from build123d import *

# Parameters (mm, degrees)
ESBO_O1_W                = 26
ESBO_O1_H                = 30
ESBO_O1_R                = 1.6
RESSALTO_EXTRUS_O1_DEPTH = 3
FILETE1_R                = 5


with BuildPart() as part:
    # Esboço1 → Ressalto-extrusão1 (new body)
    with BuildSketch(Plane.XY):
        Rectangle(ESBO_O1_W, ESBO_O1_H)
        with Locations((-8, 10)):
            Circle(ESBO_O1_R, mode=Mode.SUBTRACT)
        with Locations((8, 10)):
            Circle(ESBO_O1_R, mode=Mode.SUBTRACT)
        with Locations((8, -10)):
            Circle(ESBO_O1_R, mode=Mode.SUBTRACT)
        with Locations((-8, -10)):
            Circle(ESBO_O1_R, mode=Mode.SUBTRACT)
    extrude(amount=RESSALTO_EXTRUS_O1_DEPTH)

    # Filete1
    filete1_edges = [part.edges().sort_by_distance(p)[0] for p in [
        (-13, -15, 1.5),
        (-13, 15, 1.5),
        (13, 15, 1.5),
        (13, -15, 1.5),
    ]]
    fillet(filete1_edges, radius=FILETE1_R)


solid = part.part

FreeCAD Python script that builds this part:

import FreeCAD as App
import Part
import Sketcher

V = App.Vector


def edges_at(feature, points):
    """Names of the edges that pass closest to the given points."""
    edges = feature.Shape.Edges
    near = lambda p: min(range(len(edges)), key=lambda i: edges[i].distToShape(Part.Vertex(*p))[0])
    return sorted({f"Edge{near(p) + 1}" for p in points})

doc = App.newDocument("Part")
body = doc.addObject("PartDesign::Body", "Body")

# Sketch on XY plane
sketch1 = body.newObject("Sketcher::SketchObject", "Sketch")
sketch1.AttachmentSupport = (doc.getObject("XY_Plane"), [""])
sketch1.MapMode = "FlatFace"
sketch1.addGeometry(Part.LineSegment(V(-13, 15, 0), V(-13, -15, 0)), False)
sketch1.addGeometry(Part.LineSegment(V(-13, -15, 0), V(13, -15, 0)), False)
sketch1.addGeometry(Part.LineSegment(V(13, -15, 0), V(13, 15, 0)), False)
sketch1.addGeometry(Part.LineSegment(V(13, 15, 0), V(-13, 15, 0)), False)
sketch1.addGeometry(Part.Circle(V(-8, -10, 0), V(0, 0, 1), 1.6), False)
sketch1.addGeometry(Part.Circle(V(8, -10, 0), V(0, 0, 1), 1.6), False)
sketch1.addGeometry(Part.Circle(V(-8, 10, 0), V(0, 0, 1), 1.6), False)
sketch1.addGeometry(Part.Circle(V(8, 10, 0), V(0, 0, 1), 1.6), False)
sketch1.addConstraint(Sketcher.Constraint("Coincident", 0, 2, 1, 1))
sketch1.addConstraint(Sketcher.Constraint("Coincident", 1, 2, 2, 1))
sketch1.addConstraint(Sketcher.Constraint("Coincident", 2, 2, 3, 1))
sketch1.addConstraint(Sketcher.Constraint("Coincident", 3, 2, 0, 1))
sketch1.addConstraint(Sketcher.Constraint("Vertical", 0))
sketch1.addConstraint(Sketcher.Constraint("Horizontal", 1))
sketch1.addConstraint(Sketcher.Constraint("Vertical", 2))
sketch1.addConstraint(Sketcher.Constraint("Horizontal", 3))
sketch1.addConstraint(Sketcher.Constraint("Equal", 4, 5))
sketch1.addConstraint(Sketcher.Constraint("Equal", 5, 6))
sketch1.addConstraint(Sketcher.Constraint("Equal", 6, 7))
sketch1.addConstraint(Sketcher.Constraint("Symmetric", 5, 3, 6, 3, -1, 1))
sketch1.addConstraint(Sketcher.Constraint("Symmetric", 4, 3, 7, 3, -1, 1))
sketch1.addConstraint(Sketcher.Constraint("Symmetric", 0, 2, 2, 2, -1, 1))
sketch1.addConstraint(Sketcher.Constraint("Symmetric", 4, 3, 5, 3, -2))
sketch1.addConstraint(Sketcher.Constraint("Diameter", 4, 3.2))
sketch1.addConstraint(Sketcher.Constraint("DistanceX", 1, 1, 1, 2, 26.0))
sketch1.addConstraint(Sketcher.Constraint("DistanceY", 0, 2, 0, 1, 30.0))
sketch1.addConstraint(Sketcher.Constraint("DistanceX", 4, 3, -1, 1, 8.0))
sketch1.addConstraint(Sketcher.Constraint("DistanceY", 4, 3, -1, 1, 10.0))
pad1 = body.newObject("PartDesign::Pad", "Pad")
pad1.Profile = sketch1
pad1.Length = 3
doc.recompute()

fillet = body.newObject("PartDesign::Fillet", "Fillet")
fillet.Base = (pad1, edges_at(pad1, [
    (-13, -15, 1.5),
    (-13, 15, 1.5),
    (13, 15, 1.5),
    (13, -15, 1.5),
]))
fillet.Radius = 5

doc.recompute()
